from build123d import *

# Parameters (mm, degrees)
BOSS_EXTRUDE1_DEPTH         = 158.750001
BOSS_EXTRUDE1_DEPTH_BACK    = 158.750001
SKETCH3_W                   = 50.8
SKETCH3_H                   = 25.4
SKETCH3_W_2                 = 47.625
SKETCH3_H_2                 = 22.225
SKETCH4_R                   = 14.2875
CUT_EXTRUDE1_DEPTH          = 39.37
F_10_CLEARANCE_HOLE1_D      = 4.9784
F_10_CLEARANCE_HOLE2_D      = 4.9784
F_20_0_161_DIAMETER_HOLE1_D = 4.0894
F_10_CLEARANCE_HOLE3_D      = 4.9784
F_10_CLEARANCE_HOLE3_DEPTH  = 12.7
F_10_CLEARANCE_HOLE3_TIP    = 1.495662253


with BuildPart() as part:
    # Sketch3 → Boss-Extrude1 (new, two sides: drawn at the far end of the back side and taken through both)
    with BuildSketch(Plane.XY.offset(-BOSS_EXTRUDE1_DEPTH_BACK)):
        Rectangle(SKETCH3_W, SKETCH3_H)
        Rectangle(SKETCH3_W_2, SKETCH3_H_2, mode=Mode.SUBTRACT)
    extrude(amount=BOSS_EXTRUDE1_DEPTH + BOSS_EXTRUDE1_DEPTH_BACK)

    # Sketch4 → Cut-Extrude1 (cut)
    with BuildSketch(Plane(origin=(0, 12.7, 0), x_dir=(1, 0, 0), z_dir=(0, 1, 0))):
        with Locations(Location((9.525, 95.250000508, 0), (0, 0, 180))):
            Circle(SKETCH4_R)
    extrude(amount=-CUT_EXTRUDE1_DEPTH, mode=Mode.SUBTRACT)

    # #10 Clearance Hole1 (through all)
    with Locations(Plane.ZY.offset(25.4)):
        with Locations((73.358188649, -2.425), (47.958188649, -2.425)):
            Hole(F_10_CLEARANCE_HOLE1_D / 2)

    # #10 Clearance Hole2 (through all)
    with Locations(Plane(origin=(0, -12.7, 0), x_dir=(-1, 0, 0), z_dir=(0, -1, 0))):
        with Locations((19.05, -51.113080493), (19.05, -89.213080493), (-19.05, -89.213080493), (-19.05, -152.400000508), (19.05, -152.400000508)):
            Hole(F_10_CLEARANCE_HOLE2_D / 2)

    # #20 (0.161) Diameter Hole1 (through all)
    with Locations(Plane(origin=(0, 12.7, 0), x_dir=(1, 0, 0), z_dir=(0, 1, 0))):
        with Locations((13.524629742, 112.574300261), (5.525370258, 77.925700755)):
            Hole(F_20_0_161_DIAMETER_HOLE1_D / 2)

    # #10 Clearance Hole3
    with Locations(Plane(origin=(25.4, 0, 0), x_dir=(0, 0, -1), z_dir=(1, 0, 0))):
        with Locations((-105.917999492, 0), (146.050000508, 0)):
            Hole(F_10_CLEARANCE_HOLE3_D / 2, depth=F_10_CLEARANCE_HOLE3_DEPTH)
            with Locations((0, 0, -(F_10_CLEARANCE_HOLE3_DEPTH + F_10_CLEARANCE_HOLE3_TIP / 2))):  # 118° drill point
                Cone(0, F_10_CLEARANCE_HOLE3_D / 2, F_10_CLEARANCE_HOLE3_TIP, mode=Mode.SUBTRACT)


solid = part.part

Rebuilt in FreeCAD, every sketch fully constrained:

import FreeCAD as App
import Part
import Sketcher

V = App.Vector
Q = App.Units.Quantity

doc = App.newDocument("Part")
body = doc.addObject("PartDesign::Body", "Body")

# Sketch on XY plane
sketch1 = body.newObject("Sketcher::SketchObject", "Sketch")
sketch1.AttachmentSupport = (doc.getObject("XY_Plane"), [""])
sketch1.MapMode = "FlatFace"
sketch1.addGeometry(Part.LineSegment(V(-25.4, 12.7, 0), V(-25.4, -12.7, 0)), False)
sketch1.addGeometry(Part.LineSegment(V(-25.4, -12.7, 0), V(25.4, -12.7, 0)), False)
sketch1.addGeometry(Part.LineSegment(V(25.4, -12.7, 0), V(25.4, 12.7, 0)), False)
sketch1.addGeometry(Part.LineSegment(V(25.4, 12.7, 0), V(-25.4, 12.7, 0)), False)
sketch1.addGeometry(Part.LineSegment(V(23.8125, -11.1125, 0), V(-23.8125, -11.1125, 0)), False)
sketch1.addGeometry(Part.LineSegment(V(-23.8125, -11.1125, 0), V(-23.8125, 11.1125, 0)), False)
sketch1.addGeometry(Part.LineSegment(V(-23.8125, 11.1125, 0), V(23.8125, 11.1125, 0)), False)
sketch1.addGeometry(Part.LineSegment(V(23.8125, 11.1125, 0), V(23.8125, -11.1125, 0)), False)
sketch1.addConstraint(Sketcher.Constraint("Coincident", 0, 2, 1, 1))
sketch1.addConstraint(Sketcher.Constraint("Coincident", 1, 2, 2, 1))
sketch1.addConstraint(Sketcher.Constraint("Coincident", 2, 2, 3, 1))
sketch1.addConstraint(Sketcher.Constraint("Coincident", 3, 2, 0, 1))
sketch1.addConstraint(Sketcher.Constraint("Coincident", 4, 2, 5, 1))
sketch1.addConstraint(Sketcher.Constraint("Coincident", 5, 2, 6, 1))
sketch1.addConstraint(Sketcher.Constraint("Coincident", 6, 2, 7, 1))
sketch1.addConstraint(Sketcher.Constraint("Coincident", 7, 2, 4, 1))
sketch1.addConstraint(Sketcher.Constraint("Vertical", 0))
sketch1.addConstraint(Sketcher.Constraint("Horizontal", 1))
sketch1.addConstraint(Sketcher.Constraint("Vertical", 2))
sketch1.addConstraint(Sketcher.Constraint("Horizontal", 3))
sketch1.addConstraint(Sketcher.Constraint("Horizontal", 4))
sketch1.addConstraint(Sketcher.Constraint("Vertical", 5))
sketch1.addConstraint(Sketcher.Constraint("Horizontal", 6))
sketch1.addConstraint(Sketcher.Constraint("Vertical", 7))
sketch1.addConstraint(Sketcher.Constraint("Symmetric", 0, 2, 2, 2, -1, 1))
sketch1.addConstraint(Sketcher.Constraint("Symmetric", 4, 2, 6, 2, -1, 1))
sketch1.addConstraint(Sketcher.Constraint("DistanceX", 1, 1, 1, 2, Q("2 in")))
sketch1.addConstraint(Sketcher.Constraint("DistanceY", 0, 2, 0, 1, Q("1 in")))
sketch1.addConstraint(Sketcher.Constraint("DistanceX", 4, 2, 4, 1, Q("1.875 in")))
sketch1.addConstraint(Sketcher.Constraint("DistanceY", 5, 1, 5, 2, Q("0.875 in")))
pad1 = body.newObject("PartDesign::Pad", "Pad")
pad1.Profile = sketch1
pad1.Type = "TwoLengths"
pad1.Length = Q("6.25 in")
pad1.Length2 = Q("6.25 in")

# Sketch on XZ plane
sketch2 = body.newObject("Sketcher::SketchObject", "Sketch001")
sketch2.AttachmentSupport = (doc.getObject("XZ_Plane"), [""])
sketch2.MapMode = "FlatFace"
sketch2.AttachmentOffset = App.Placement(V(0, 0, -0.5 * 25.4), App.Rotation())
sketch2.addGeometry(Part.Circle(V(9.525, -95.250001, 0), V(0, 0, 1), 14.2875), False)
sketch2.addConstraint(Sketcher.Constraint("Diameter", 0, Q("1.125 in")))
sketch2.addConstraint(Sketcher.Constraint("DistanceY", 0, 3, -1, 1, Q("3.75 in")))
sketch2.addConstraint(Sketcher.Constraint("DistanceX", -1, 1, 0, 3, Q("0.375 in")))
pocket1 = body.newObject("PartDesign::Pocket", "Pocket")
pocket1.Profile = sketch2
pocket1.Length = Q("1.55 in")
pocket1.Reversed = True

# Sketch on YZ plane
sketch3 = body.newObject("Sketcher::SketchObject", "Sketch002")
sketch3.AttachmentSupport = (doc.getObject("YZ_Plane"), [""])
sketch3.MapMode = "FlatFace"
sketch3.AttachmentOffset = App.Placement(V(0, 0, -1 * 25.4), App.Rotation())
sketch3.addGeometry(Part.Circle(V(-2.425, 73.358189, 0), V(0, 0, 1), 2.4892), False)
sketch3.addGeometry(Part.Circle(V(-2.425, 47.958189, 0), V(0, 0, 1), 2.4892), False)
sketch3.addConstraint(Sketcher.Constraint("Equal", 0, 1))
sketch3.addConstraint(Sketcher.Constraint("Vertical", 0, 3, 1, 3))
sketch3.addConstraint(Sketcher.Constraint("Diameter", 0, Q("0.196 in")))
sketch3.addConstraint(Sketcher.Constraint("DistanceY", 1, 3, 0, 3, Q("1 in")))
sketch3.addConstraint(Sketcher.Constraint("DistanceX", 0, 3, -1, 1, Q("2.425 mm")))
sketch3.addConstraint(Sketcher.Constraint("DistanceY", -1, 1, 0, 3, Q("73.358189 mm")))
doc.recompute()
hole = body.newObject("PartDesign::Hole", "Hole")
hole.Profile = sketch3
hole.ThreadType = "None"
hole.Diameter = Q("0.196 in")
hole.DepthType = "ThroughAll"
hole.Reversed = True

# Sketch on XZ plane
sketch4 = body.newObject("Sketcher::SketchObject", "Sketch003")
sketch4.AttachmentSupport = (doc.getObject("XZ_Plane"), [""])
sketch4.MapMode = "FlatFace"
sketch4.AttachmentOffset = App.Placement(V(0, 0, 0.5 * 25.4), App.Rotation())
sketch4.addGeometry(Part.Circle(V(-19.05, 51.11308, 0), V(0, 0, 1), 2.4892), False)
sketch4.addGeometry(Part.Circle(V(-19.05, 89.21308, 0), V(0, 0, 1), 2.4892), False)
sketch4.addGeometry(Part.Circle(V(19.05, 89.21308, 0), V(0, 0, 1), 2.4892), False)
sketch4.addGeometry(Part.Circle(V(19.05, 152.400001, 0), V(0, 0, 1), 2.4892), False)
sketch4.addGeometry(Part.Circle(V(-19.05, 152.400001, 0), V(0, 0, 1), 2.4892), False)
sketch4.addConstraint(Sketcher.Constraint("Equal", 0, 1))
sketch4.addConstraint(Sketcher.Constraint("Equal", 1, 2))
sketch4.addConstraint(Sketcher.Constraint("Equal", 2, 3))
sketch4.addConstraint(Sketcher.Constraint("Equal", 3, 4))
sketch4.addConstraint(Sketcher.Constraint("Symmetric", 1, 3, 2, 3, -2))
sketch4.addConstraint(Sketcher.Constraint("Symmetric", 3, 3, 4, 3, -2))
sketch4.addConstraint(Sketcher.Constraint("Vertical", 0, 3, 1, 3))
sketch4.addConstraint(Sketcher.Constraint("Vertical", 2, 3, 3, 3))
sketch4.addConstraint(Sketcher.Constraint("Diameter", 0, Q("0.196 in")))
sketch4.addConstraint(Sketcher.Constraint("DistanceY", -1, 1, 3, 3, Q("6 in")))
sketch4.addConstraint(Sketcher.Constraint("DistanceY", 0, 3, 1, 3, Q("1.5 in")))
sketch4.addConstraint(Sketcher.Constraint("DistanceX", 1, 3, 2, 3, Q("1.5 in")))
sketch4.addConstraint(Sketcher.Constraint("DistanceY", -1, 1, 0, 3, Q("51.11308 mm")))
doc.recompute()
hole2 = body.newObject("PartDesign::Hole", "Hole001")
hole2.Profile = sketch4
hole2.ThreadType = "None"
hole2.Diameter = Q("0.196 in")
hole2.DepthType = "ThroughAll"

# Sketch on XZ plane
sketch5 = body.newObject("Sketcher::SketchObject", "Sketch004")
sketch5.AttachmentSupport = (doc.getObject("XZ_Plane"), [""])
sketch5.MapMode = "FlatFace"
sketch5.AttachmentOffset = App.Placement(V(0, 0, -0.5 * 25.4), App.Rotation())
sketch5.addGeometry(Part.Circle(V(13.52463, -112.5743, 0), V(0, 0, 1), 2.0447), False)
sketch5.addGeometry(Part.Circle(V(5.52537, -77.925701, 0), V(0, 0, 1), 2.0447), False)
sketch5.addConstraint(Sketcher.Constraint("Equal", 0, 1))
sketch5.addConstraint(Sketcher.Constraint("Diameter", 0, Q("0.161 in")))
sketch5.addConstraint(Sketcher.Constraint("DistanceY", 0, 3, -1, 1, Q("112.5743 mm")))
sketch5.addConstraint(Sketcher.Constraint("DistanceY", 1, 3, -1, 1, Q("77.925701 mm")))
sketch5.addConstraint(Sketcher.Constraint("DistanceX", -1, 1, 0, 3, Q("13.52463 mm")))
sketch5.addConstraint(Sketcher.Constraint("DistanceX", -1, 1, 1, 3, Q("5.52537 mm")))
doc.recompute()
hole3 = body.newObject("PartDesign::Hole", "Hole002")
hole3.Profile = sketch5
hole3.ThreadType = "None"
hole3.Diameter = Q("0.161 in")
hole3.DepthType = "ThroughAll"
hole3.Reversed = True

# Sketch on YZ plane
sketch6 = body.newObject("Sketcher::SketchObject", "Sketch005")
sketch6.AttachmentSupport = (doc.getObject("YZ_Plane"), [""])
sketch6.MapMode = "FlatFace"
sketch6.AttachmentOffset = App.Placement(V(0, 0, 1 * 25.4), App.Rotation())
sketch6.addGeometry(Part.Circle(V(0, 105.917999, 0), V(0, 0, 1), 2.4892), False)
sketch6.addGeometry(Part.Circle(V(0, -146.050001, 0), V(0, 0, 1), 2.4892), False)
sketch6.addConstraint(Sketcher.Constraint("Equal", 0, 1))
sketch6.addConstraint(Sketcher.Constraint("PointOnObject", 0, 3, -2))
sketch6.addConstraint(Sketcher.Constraint("PointOnObject", 1, 3, -2))
sketch6.addConstraint(Sketcher.Constraint("Diameter", 0, Q("0.196 in")))
sketch6.addConstraint(Sketcher.Constraint("DistanceY", -1, 1, 0, 3, Q("4.17 in")))
sketch6.addConstraint(Sketcher.Constraint("DistanceY", 1, 3, -1, 1, Q("5.75 in")))
doc.recompute()
hole4 = body.newObject("PartDesign::Hole", "Hole003")
hole4.Profile = sketch6
hole4.ThreadType = "None"
hole4.Diameter = Q("0.196 in")
hole4.DepthType = "Dimension"
hole4.Depth = Q("0.5 in")
hole4.DrillPoint = "Angled"
hole4.DrillPointAngle = 118

doc.recompute()
